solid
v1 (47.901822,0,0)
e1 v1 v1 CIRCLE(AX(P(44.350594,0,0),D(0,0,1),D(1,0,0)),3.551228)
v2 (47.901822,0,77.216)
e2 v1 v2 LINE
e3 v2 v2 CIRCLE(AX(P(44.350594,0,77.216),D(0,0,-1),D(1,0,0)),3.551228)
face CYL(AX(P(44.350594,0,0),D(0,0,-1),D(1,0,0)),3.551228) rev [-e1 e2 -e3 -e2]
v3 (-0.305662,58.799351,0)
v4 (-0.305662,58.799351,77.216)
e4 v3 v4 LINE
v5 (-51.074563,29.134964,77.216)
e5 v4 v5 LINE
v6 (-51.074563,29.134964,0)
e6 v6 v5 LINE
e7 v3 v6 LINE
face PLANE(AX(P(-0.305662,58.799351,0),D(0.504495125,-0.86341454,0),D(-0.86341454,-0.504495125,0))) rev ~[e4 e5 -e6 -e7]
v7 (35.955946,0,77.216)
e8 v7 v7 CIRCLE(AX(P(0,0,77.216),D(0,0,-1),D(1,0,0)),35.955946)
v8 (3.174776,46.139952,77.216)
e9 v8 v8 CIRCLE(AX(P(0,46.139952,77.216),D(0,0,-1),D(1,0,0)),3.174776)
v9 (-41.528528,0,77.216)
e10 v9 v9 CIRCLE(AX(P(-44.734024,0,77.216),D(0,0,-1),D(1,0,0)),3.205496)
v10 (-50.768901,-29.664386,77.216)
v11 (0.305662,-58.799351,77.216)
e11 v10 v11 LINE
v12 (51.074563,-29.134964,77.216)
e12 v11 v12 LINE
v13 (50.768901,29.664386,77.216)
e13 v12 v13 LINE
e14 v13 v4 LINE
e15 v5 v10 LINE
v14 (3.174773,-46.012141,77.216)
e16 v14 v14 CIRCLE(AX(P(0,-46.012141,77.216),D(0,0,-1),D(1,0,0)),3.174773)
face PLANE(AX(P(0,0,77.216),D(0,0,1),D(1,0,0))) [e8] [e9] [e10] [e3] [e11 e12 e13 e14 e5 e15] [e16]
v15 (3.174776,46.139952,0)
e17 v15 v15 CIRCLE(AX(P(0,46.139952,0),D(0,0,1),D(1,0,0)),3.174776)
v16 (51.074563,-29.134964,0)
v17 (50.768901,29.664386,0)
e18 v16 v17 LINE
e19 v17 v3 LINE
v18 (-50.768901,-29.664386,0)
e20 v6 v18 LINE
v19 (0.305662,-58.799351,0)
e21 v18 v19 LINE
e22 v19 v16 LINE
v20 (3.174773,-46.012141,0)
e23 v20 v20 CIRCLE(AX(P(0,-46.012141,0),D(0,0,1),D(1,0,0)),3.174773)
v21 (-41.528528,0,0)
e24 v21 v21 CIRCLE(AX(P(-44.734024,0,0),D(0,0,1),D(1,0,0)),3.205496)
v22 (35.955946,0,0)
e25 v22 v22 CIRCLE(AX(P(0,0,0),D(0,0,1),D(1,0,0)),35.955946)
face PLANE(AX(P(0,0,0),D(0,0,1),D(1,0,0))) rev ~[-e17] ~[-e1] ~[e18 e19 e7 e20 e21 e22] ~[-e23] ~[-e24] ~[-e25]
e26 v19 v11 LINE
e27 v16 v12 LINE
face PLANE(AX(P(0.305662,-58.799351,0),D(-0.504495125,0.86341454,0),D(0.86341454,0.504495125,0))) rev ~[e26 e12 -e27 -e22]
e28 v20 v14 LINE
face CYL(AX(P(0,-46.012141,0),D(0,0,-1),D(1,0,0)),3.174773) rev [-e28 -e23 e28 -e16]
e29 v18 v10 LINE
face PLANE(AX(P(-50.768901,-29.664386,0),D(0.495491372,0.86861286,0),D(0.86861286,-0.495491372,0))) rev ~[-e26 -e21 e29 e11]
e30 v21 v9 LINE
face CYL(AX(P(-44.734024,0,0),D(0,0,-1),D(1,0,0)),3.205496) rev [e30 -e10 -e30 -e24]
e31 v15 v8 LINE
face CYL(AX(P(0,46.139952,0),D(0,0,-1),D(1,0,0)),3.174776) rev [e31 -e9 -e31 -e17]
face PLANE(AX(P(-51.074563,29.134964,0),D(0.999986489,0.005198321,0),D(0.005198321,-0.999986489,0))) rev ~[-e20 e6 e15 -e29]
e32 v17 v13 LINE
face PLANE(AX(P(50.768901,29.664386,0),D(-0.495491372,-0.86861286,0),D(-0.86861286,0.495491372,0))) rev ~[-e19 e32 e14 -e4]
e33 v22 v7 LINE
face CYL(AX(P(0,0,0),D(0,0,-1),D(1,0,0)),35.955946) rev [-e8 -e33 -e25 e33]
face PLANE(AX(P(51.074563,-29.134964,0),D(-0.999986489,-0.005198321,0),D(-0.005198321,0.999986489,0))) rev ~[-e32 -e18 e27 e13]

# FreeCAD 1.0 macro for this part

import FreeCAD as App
import Part
import Sketcher
Q = App.Units.Quantity


def add_polygon(sketch, points):
    """Adds a closed chain of lines whose ends are joined by coincident constraints."""
    first, n = sketch.GeometryCount, len(points)
    for a, b in zip(points, points[1:] + points[:1]):
        sketch.addGeometry(Part.LineSegment(App.Vector(*a, 0), App.Vector(*b, 0)), False)
    for i in range(n):
        sketch.addConstraint(Sketcher.Constraint("Coincident", first + i, 2, first + (i + 1) % n, 1))

doc = App.newDocument("Part")
body = doc.addObject("PartDesign::Body", "Body")

# Sketch on XY plane
sketch1 = body.newObject("Sketcher::SketchObject", "Sketch")
sketch1.AttachmentSupport = (doc.getObject("XY_Plane"), [""])
sketch1.MapMode = "FlatFace"
add_polygon(sketch1, [(0, -59), (51, -29), (51, 30), (0, 59), (-51, 29), (-51, -30)])  # lines 0-5
sketch1.addConstraint(Sketcher.Constraint("Symmetric", 0, 2, 3, 2, -1, 1))
sketch1.addConstraint(Sketcher.Constraint("Symmetric", 1, 2, 4, 2, -1, 1))
sketch1.addConstraint(Sketcher.Constraint("Symmetric", 2, 2, 5, 2, -1, 1))
sketch1.addConstraint(Sketcher.Constraint("Equal", 0, 1))
sketch1.addConstraint(Sketcher.Constraint("Equal", 1, 2))
sketch1.addConstraint(Sketcher.Constraint("DistanceX", -1, 1, 1, 2, Q("50.768901 mm")))
sketch1.addConstraint(Sketcher.Constraint("DistanceX", 3, 2, 2, 2, Q("50.768901 mm")))
sketch1.addConstraint(Sketcher.Constraint("DistanceY", -1, 1, 2, 2, Q("58.799351 mm")))
sketch1.addConstraint(Sketcher.Constraint("DistanceX", 1, 2, 0, 2, Q("0.305662 mm")))
pad1 = body.newObject("PartDesign::Pad", "Pad")
pad1.Profile = sketch1
pad1.Length = Q("3.04 in")

# Sketch on XY plane
sketch2 = body.newObject("Sketcher::SketchObject", "Sketch001")
sketch2.AttachmentSupport = (doc.getObject("XY_Plane"), [""])
sketch2.MapMode = "FlatFace"
sketch2.addGeometry(Part.Circle(App.Vector(0, 0, 0), App.Vector(0, 0, 1), 36), False)
sketch2.addConstraint(Sketcher.Constraint("Coincident", 0, 3, -1, 1))
sketch2.addConstraint(Sketcher.Constraint("Diameter", 0, Q("71.911892 mm")))
pocket1 = body.newObject("PartDesign::Pocket", "Pocket")
pocket1.Profile = sketch2
pocket1.Length = Q("3.46 in")
pocket1.Reversed = True

# Sketch on XY plane
sketch3 = body.newObject("Sketcher::SketchObject", "Sketch002")
sketch3.AttachmentSupport = (doc.getObject("XY_Plane"), [""])
sketch3.MapMode = "FlatFace"
sketch3.addGeometry(Part.Circle(App.Vector(-44.7, 0, 0), App.Vector(0, 0, 1), 3.2), False)
sketch3.addGeometry(Part.Circle(App.Vector(44.4, 0, 0), App.Vector(0, 0, 1), 3.6), False)
sketch3.addGeometry(Part.Circle(App.Vector(0, 46.1, 0), App.Vector(0, 0, 1), 3.2), False)
sketch3.addGeometry(Part.Circle(App.Vector(0, -46, 0), App.Vector(0, 0, 1), 3.2), False)
sketch3.addConstraint(Sketcher.Constraint("PointOnObject", 0, 3, -1))
sketch3.addConstraint(Sketcher.Constraint("PointOnObject", 1, 3, -1))
sketch3.addConstraint(Sketcher.Constraint("PointOnObject", 2, 3, -2))
sketch3.addConstraint(Sketcher.Constraint("PointOnObject", 3, 3, -2))
sketch3.addConstraint(Sketcher.Constraint("Diameter", 0, Q("6.410992 mm")))
sketch3.addConstraint(Sketcher.Constraint("Diameter", 1, Q("7.102456 mm")))
sketch3.addConstraint(Sketcher.Constraint("Diameter", 2, Q("6.349552 mm")))
sketch3.addConstraint(Sketcher.Constraint("Diameter", 3, Q("6.349546 mm")))
sketch3.addConstraint(Sketcher.Constraint("DistanceY", 3, 3, -1, 1, Q("46.012141 mm")))
sketch3.addConstraint(Sketcher.Constraint("DistanceX", 0, 3, 1, 3, Q("89.084618 mm")))
sketch3.addConstraint(Sketcher.Constraint("DistanceX", 0, 3, -1, 1, Q("44.734024 mm")))
sketch3.addConstraint(Sketcher.Constraint("DistanceY", -1, 1, 2, 3, Q("46.139952 mm")))
pocket2 = body.newObject("PartDesign::Pocket", "Pocket001")
pocket2.Profile = sketch3
pocket2.Length = Q("3.76 in")
pocket2.Reversed = True

doc.recompute()
